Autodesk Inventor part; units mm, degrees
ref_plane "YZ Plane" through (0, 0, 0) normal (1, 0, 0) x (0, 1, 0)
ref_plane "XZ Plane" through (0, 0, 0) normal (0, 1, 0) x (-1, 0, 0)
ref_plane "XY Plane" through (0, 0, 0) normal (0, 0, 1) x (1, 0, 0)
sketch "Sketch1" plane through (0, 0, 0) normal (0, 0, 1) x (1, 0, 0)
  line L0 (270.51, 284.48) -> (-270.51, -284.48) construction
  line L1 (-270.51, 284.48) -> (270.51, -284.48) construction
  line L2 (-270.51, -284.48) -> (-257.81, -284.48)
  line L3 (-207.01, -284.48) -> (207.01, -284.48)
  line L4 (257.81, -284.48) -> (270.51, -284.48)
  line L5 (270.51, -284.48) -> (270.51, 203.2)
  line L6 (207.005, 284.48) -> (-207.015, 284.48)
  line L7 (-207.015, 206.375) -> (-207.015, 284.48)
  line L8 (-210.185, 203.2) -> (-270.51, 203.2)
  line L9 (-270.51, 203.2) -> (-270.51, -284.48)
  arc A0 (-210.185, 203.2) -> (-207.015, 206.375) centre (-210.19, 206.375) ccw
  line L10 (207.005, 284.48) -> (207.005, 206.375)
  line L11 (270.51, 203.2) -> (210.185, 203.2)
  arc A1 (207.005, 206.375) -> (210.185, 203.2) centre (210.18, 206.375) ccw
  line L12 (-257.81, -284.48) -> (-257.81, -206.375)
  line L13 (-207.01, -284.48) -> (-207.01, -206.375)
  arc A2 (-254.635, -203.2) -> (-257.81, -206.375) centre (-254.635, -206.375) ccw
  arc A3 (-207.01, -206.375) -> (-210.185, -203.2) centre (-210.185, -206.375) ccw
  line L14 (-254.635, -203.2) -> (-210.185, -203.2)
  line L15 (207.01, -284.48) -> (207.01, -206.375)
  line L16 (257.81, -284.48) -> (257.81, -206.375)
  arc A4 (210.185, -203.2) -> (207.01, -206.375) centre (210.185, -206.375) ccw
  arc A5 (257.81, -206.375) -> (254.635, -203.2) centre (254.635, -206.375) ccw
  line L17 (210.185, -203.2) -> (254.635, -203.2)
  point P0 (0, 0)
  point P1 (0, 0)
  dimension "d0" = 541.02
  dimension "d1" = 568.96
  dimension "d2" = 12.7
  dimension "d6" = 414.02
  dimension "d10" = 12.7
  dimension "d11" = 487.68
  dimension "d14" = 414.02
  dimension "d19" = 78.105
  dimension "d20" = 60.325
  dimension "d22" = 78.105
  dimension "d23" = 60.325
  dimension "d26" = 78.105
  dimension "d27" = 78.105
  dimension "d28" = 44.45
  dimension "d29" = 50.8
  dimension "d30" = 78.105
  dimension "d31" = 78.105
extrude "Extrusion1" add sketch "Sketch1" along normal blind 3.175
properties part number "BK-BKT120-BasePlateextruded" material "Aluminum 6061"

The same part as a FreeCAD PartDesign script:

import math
import FreeCAD as App
import Part
import Sketcher
from FreeCAD import Vector
Q = App.Units.Quantity

doc = App.newDocument("Part")
body = doc.addObject("PartDesign::Body", "Body")

sketch1 = body.newObject("Sketcher::SketchObject", "Sketch")
sketch1.AttachmentSupport = (doc.getObject("XY_Plane"), [""])
sketch1.MapMode = "FlatFace"
sketch1.addGeometry([
    Part.LineSegment(Vector(-270.51, 203.2, 0), Vector(-270.51, -284.48, 0)),
    Part.LineSegment(Vector(-270.51, -284.48, 0), Vector(-257.81, -284.48, 0)),
    Part.LineSegment(Vector(-257.81, -284.48, 0), Vector(-257.81, -206.375, 0)),
    Part.ArcOfCircle(Part.Circle(Vector(-254.635, -206.375, 0), Vector(0, 0, 1), 3.175), math.radians(90), math.radians(180)),
    Part.LineSegment(Vector(-254.635, -203.2, 0), Vector(-210.185, -203.2, 0)),
    Part.ArcOfCircle(Part.Circle(Vector(-210.185, -206.375, 0), Vector(0, 0, 1), 3.175), math.radians(0), math.radians(90)),
    Part.LineSegment(Vector(-207.01, -206.375, 0), Vector(-207.01, -284.48, 0)),
    Part.LineSegment(Vector(-207.01, -284.48, 0), Vector(207.01, -284.48, 0)),
    Part.LineSegment(Vector(207.01, -284.48, 0), Vector(207.01, -206.375, 0)),
    Part.ArcOfCircle(Part.Circle(Vector(210.185, -206.375, 0), Vector(0, 0, 1), 3.175), math.radians(90), math.radians(180)),
    Part.LineSegment(Vector(210.185, -203.2, 0), Vector(254.635, -203.2, 0)),
    Part.ArcOfCircle(Part.Circle(Vector(254.635, -206.375, 0), Vector(0, 0, 1), 3.175), math.radians(0), math.radians(90)),
    Part.LineSegment(Vector(257.81, -206.375, 0), Vector(257.81, -284.48, 0)),
    Part.LineSegment(Vector(257.81, -284.48, 0), Vector(270.51, -284.48, 0)),
    Part.LineSegment(Vector(270.51, -284.48, 0), Vector(270.51, 203.2, 0)),
    Part.LineSegment(Vector(270.51, 203.2, 0), Vector(210.185, 203.2, 0)),
    Part.ArcOfCircle(Part.Circle(Vector(210.18, 206.375, 0), Vector(0, 0, 1), 3.175), math.radians(180), math.radians(270.090229)),
    Part.LineSegment(Vector(207.005, 206.375, 0), Vector(207.005, 284.48, 0)),
    Part.LineSegment(Vector(207.005, 284.48, 0), Vector(-207.015, 284.48, 0)),
    Part.LineSegment(Vector(-207.015, 284.48, 0), Vector(-207.015, 206.375, 0)),
    Part.ArcOfCircle(Part.Circle(Vector(-210.19, 206.375, 0), Vector(0, 0, 1), 3.175004), math.radians(-89.909771), math.radians(0)),
    Part.LineSegment(Vector(-210.185, 203.2, 0), Vector(-270.51, 203.2, 0)),
], False)
sketch1.addConstraint([
    Sketcher.Constraint("Coincident", 0, 2, 1, 1),
    Sketcher.Constraint("Coincident", 1, 2, 2, 1),
    Sketcher.Constraint("Tangent", 2, 2, 3, 2),
    Sketcher.Constraint("Tangent", 3, 1, 4, 1),
    Sketcher.Constraint("Tangent", 4, 2, 5, 2),
    Sketcher.Constraint("Tangent", 5, 1, 6, 1),
    Sketcher.Constraint("Coincident", 6, 2, 7, 1),
    Sketcher.Constraint("Coincident", 7, 2, 8, 1),
    Sketcher.Constraint("Tangent", 8, 2, 9, 2),
    Sketcher.Constraint("Tangent", 9, 1, 10, 1),
    Sketcher.Constraint("Tangent", 10, 2, 11, 2),
    Sketcher.Constraint("Tangent", 11, 1, 12, 1),
    Sketcher.Constraint("Coincident", 12, 2, 13, 1),
    Sketcher.Constraint("Coincident", 13, 2, 14, 1),
    Sketcher.Constraint("Coincident", 14, 2, 15, 1),
    Sketcher.Constraint("Coincident", 15, 2, 16, 2),
    Sketcher.Constraint("Tangent", 16, 1, 17, 1),
    Sketcher.Constraint("Coincident", 17, 2, 18, 1),
    Sketcher.Constraint("Coincident", 18, 2, 19, 1),
    Sketcher.Constraint("Tangent", 19, 2, 20, 2),
    Sketcher.Constraint("Coincident", 20, 1, 21, 1),
    Sketcher.Constraint("Coincident", 21, 2, 0, 1),
    Sketcher.Constraint("Vertical", 0),
    Sketcher.Constraint("Horizontal", 1),
    Sketcher.Constraint("Vertical", 2),
    Sketcher.Constraint("Horizontal", 4),
    Sketcher.Constraint("Vertical", 6),
    Sketcher.Constraint("Horizontal", 7),
    Sketcher.Constraint("Vertical", 8),
    Sketcher.Constraint("Horizontal", 10),
    Sketcher.Constraint("Vertical", 12),
    Sketcher.Constraint("Horizontal", 13),
    Sketcher.Constraint("Vertical", 14),
    Sketcher.Constraint("Horizontal", 15),
    Sketcher.Constraint("Vertical", 17),
    Sketcher.Constraint("Horizontal", 18),
    Sketcher.Constraint("Vertical", 19),
    Sketcher.Constraint("Horizontal", 21),
    Sketcher.Constraint("Equal", 3, 5),
    Sketcher.Constraint("Equal", 5, 9),
    Sketcher.Constraint("Equal", 9, 11),
    Sketcher.Constraint("Equal", 11, 16),
    Sketcher.Constraint("Equal", 16, 20),
    Sketcher.Constraint("Symmetric", 4, 2, 15, 2, -1, 1),
    Sketcher.Constraint("Symmetric", 9, 1, 20, 1, -1, 1),
    Sketcher.Constraint("Symmetric", 5, 3, 9, 3, -2),
    Sketcher.Constraint("Symmetric", 1, 2, 12, 2, -2),
    Sketcher.Constraint("Horizontal", 1, 2, 6, 2),
    Sketcher.Constraint("Equal", 1, 13),
    Sketcher.Constraint("Equal", 7, 18),
    Sketcher.Constraint("Equal", 12, 17),
    Sketcher.Constraint("DistanceX", 1, 1, 1, 2, Q("0.5 in")),
    Sketcher.Constraint("DistanceX", 7, 1, 7, 2, Q("16.3 in")),
    Sketcher.Constraint("DistanceY", 0, 2, 0, 1, Q("19.2 in")),
    Sketcher.Constraint("DistanceX", 2, 2, 5, 1, Q("2 in")),
    Sketcher.Constraint("DistanceX", 4, 1, 4, 2, Q("1.75 in")),
    Sketcher.Constraint("DistanceY", 2, 1, 2, 2, Q("3.075 in")),
    Sketcher.Constraint("DistanceX", -1, 1, 16, 3, Q("8.2748 in")),
])
pad1 = body.newObject("PartDesign::Pad", "Pad")
pad1.Profile = sketch1
pad1.Length = Q("0.125 in")

doc.recompute()
